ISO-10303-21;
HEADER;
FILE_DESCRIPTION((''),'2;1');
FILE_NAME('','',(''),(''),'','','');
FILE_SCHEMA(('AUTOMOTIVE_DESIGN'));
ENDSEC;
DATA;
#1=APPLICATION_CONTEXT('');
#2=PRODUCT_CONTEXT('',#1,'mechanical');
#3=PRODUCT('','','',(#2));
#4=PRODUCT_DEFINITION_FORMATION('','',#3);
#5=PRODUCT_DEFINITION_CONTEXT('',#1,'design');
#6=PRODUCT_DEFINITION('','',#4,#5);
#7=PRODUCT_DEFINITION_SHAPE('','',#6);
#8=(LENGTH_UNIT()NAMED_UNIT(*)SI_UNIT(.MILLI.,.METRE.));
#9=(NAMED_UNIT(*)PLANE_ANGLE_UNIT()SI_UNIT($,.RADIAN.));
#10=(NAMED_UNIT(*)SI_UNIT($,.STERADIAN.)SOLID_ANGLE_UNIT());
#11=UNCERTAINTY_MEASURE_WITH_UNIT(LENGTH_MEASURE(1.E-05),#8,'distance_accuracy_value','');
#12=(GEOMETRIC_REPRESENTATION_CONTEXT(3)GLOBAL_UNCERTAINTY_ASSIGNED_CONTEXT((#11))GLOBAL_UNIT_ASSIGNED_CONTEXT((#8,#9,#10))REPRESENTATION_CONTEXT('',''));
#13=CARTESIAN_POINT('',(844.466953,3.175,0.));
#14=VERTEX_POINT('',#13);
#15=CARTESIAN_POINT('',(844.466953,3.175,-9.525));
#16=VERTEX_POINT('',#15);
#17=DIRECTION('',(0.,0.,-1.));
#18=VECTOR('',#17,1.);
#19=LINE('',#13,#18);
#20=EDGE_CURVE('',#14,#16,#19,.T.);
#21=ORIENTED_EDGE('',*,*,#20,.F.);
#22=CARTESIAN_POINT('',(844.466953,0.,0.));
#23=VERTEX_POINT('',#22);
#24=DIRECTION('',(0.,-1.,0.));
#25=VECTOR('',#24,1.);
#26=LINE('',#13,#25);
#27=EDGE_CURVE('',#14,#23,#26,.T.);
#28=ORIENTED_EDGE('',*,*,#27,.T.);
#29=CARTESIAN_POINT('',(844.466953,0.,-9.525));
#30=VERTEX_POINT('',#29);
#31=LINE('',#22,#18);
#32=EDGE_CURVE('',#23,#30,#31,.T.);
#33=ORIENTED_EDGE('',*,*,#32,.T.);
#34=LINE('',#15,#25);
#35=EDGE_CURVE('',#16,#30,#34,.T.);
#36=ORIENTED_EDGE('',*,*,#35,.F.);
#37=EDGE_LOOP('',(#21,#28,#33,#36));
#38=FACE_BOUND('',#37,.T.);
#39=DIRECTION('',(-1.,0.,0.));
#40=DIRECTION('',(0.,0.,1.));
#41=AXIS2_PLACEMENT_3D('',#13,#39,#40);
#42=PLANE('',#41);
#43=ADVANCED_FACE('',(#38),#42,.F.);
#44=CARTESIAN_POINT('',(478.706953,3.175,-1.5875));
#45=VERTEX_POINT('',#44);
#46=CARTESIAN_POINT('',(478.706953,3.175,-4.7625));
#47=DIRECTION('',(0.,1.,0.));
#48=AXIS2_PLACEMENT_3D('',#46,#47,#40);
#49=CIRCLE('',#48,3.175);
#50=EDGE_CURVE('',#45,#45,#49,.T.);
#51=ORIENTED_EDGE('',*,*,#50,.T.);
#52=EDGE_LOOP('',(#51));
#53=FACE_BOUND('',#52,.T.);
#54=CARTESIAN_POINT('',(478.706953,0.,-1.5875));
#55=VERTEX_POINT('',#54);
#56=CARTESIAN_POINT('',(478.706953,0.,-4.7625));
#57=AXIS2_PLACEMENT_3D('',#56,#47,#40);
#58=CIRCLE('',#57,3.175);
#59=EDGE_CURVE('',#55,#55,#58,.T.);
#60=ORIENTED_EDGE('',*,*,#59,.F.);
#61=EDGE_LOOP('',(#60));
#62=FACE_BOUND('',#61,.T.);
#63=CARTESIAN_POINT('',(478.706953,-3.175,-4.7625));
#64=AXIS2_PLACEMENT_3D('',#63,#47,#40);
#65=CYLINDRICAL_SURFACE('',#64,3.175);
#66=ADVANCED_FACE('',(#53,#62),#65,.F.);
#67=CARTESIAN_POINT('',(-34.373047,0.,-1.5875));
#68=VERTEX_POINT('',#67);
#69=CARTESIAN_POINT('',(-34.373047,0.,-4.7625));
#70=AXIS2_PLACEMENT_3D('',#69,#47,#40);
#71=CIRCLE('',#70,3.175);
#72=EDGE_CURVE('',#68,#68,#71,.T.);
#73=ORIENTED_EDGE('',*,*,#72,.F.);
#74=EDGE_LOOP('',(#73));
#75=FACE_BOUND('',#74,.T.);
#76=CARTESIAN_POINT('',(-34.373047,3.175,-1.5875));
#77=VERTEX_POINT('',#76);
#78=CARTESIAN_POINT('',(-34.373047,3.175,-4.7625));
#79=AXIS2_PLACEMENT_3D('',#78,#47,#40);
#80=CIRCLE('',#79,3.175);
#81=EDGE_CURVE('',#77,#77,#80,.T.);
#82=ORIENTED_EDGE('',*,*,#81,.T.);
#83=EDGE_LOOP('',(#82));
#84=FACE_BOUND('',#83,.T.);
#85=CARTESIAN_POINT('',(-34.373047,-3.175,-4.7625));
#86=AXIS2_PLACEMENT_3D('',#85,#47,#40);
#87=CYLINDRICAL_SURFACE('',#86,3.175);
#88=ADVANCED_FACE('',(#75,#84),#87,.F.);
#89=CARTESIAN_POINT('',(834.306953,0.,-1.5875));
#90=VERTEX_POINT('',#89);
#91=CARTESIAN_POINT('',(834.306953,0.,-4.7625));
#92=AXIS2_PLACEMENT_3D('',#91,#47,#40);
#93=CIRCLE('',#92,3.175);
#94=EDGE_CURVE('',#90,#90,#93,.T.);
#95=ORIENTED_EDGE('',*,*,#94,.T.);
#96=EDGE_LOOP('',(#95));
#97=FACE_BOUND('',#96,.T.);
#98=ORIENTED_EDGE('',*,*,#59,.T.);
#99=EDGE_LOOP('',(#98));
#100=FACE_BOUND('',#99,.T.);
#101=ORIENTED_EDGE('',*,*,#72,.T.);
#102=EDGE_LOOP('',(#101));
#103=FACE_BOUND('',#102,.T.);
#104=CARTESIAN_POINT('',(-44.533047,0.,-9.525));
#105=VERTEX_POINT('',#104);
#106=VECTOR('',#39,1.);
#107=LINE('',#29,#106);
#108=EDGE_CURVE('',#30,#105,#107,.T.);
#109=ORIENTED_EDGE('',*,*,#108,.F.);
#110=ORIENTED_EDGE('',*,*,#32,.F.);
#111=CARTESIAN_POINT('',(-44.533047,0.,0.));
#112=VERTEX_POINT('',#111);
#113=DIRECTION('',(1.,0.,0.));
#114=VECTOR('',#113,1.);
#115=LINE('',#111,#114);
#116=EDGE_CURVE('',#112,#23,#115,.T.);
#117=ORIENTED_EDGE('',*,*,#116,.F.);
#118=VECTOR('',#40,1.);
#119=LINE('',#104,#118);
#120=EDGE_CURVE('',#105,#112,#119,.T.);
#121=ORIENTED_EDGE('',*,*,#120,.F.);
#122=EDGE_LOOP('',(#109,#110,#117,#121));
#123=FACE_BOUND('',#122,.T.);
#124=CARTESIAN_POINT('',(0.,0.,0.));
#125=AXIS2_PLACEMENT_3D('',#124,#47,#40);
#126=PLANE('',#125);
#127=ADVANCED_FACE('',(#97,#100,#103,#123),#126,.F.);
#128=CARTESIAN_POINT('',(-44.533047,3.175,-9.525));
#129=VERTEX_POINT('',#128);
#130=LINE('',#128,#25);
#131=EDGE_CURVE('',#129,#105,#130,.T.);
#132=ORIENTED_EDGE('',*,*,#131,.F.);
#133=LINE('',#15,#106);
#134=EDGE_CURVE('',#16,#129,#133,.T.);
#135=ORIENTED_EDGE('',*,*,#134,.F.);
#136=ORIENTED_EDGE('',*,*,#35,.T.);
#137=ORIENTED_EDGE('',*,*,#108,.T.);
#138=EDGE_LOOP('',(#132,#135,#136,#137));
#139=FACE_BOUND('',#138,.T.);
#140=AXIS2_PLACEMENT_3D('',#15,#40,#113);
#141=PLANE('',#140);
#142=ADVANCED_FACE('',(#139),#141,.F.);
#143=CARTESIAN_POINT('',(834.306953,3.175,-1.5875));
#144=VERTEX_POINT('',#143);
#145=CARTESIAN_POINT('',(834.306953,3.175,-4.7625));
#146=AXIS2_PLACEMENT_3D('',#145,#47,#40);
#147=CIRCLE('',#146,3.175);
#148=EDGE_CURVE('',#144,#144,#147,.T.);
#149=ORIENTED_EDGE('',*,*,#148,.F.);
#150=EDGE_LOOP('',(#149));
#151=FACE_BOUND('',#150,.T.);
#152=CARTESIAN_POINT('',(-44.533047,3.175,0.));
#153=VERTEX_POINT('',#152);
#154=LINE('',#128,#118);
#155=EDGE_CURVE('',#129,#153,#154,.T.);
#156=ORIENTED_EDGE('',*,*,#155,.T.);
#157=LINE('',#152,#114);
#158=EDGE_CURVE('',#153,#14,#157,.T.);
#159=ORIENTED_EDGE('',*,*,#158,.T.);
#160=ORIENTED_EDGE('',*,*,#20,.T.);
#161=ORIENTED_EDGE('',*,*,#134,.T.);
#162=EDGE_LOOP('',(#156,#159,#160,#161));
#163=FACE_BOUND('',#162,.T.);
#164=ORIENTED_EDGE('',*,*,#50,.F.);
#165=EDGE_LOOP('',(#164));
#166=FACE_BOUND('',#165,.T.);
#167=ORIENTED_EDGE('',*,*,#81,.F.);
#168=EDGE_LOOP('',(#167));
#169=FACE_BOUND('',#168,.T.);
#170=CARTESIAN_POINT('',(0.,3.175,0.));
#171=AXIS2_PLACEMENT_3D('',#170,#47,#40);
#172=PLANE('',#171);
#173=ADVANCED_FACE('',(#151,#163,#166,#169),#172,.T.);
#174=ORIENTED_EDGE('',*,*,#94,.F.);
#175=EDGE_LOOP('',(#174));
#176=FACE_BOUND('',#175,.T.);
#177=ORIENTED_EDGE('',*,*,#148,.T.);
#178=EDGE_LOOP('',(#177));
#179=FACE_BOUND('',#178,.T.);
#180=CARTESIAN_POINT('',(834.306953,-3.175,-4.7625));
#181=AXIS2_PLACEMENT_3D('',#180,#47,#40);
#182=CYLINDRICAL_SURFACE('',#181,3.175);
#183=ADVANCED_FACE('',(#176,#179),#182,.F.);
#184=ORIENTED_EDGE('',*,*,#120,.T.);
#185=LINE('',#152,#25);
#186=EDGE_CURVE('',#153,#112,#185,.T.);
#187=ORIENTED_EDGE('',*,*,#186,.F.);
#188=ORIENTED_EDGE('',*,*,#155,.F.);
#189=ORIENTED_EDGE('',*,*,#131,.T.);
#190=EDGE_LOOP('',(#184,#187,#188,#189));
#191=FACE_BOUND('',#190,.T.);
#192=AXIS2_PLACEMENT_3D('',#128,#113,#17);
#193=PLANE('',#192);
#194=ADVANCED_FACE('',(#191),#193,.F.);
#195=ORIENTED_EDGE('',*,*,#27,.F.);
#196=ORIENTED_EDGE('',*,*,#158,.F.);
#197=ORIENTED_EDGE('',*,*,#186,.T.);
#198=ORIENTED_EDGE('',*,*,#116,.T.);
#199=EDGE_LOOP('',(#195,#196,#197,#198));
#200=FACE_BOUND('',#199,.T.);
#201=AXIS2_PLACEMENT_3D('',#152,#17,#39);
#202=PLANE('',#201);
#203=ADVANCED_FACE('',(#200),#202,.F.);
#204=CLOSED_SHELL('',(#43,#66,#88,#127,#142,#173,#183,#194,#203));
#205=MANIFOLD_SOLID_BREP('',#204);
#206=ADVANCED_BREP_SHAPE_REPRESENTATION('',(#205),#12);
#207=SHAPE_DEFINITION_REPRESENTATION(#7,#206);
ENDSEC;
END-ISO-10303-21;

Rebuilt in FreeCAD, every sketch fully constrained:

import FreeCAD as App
import Part
import Sketcher
from FreeCAD import Vector
Q = App.Units.Quantity


def add_polygon(sketch, points):
    """Adds a closed chain of lines whose ends are joined by coincident constraints."""
    first, n = sketch.GeometryCount, len(points)
    for a, b in zip(points, points[1:] + points[:1]):
        sketch.addGeometry(Part.LineSegment(App.Vector(*a, 0), App.Vector(*b, 0)), False)
    for i in range(n):
        sketch.addConstraint(Sketcher.Constraint("Coincident", first + i, 2, first + (i + 1) % n, 1))

doc = App.newDocument("Part")
body = doc.addObject("PartDesign::Body", "Body")

# Sketch on XZ plane
sketch1 = doc.addObject("Sketcher::SketchObject", "Sketch")
body.addObject(sketch1)
sketch1.AttachmentSupport = (doc.XZ_Plane, [""])
sketch1.MapMode = "FlatFace"
add_polygon(sketch1, [(-44.533047, -9.525), (-44.533047, 0), (844.466953, 0), (844.466953, -9.525)])  # lines 0-3
sketch1.addConstraint([
    Sketcher.Constraint("Vertical", 0),
    Sketcher.Constraint("Horizontal", 1),
    Sketcher.Constraint("Vertical", 2),
    Sketcher.Constraint("Horizontal", 3),
    Sketcher.Constraint("PointOnObject", 0, 2, -1),
    Sketcher.Constraint("DistanceX", 1, 1, 1, 2, Q("35 in")),
    Sketcher.Constraint("DistanceY", 0, 1, 0, 2, Q("0.375 in")),
    Sketcher.Constraint("DistanceX", 0, 2, -1, 1, 44.533047),
])
pad1 = doc.addObject("PartDesign::Pad", "Pad")
body.addObject(pad1)
pad1.Profile = sketch1
pad1.Length = Q("0.125 in")
pad1.Reversed = True

# Sketch on XZ plane
sketch2 = doc.addObject("Sketcher::SketchObject", "Sketch001")
body.addObject(sketch2)
sketch2.AttachmentSupport = (doc.XZ_Plane, [""])
sketch2.MapMode = "FlatFace"
sketch2.AttachmentOffset = App.Placement(Vector(0, 0, -0.125 * 25.4), App.Rotation())
sketch2.addGeometry([
    Part.Circle(Vector(-34.373047, -4.7625, 0), Vector(0, 0, 1), 3.175),
    Part.Circle(Vector(834.306953, -4.7625, 0), Vector(0, 0, 1), 3.175),
    Part.Circle(Vector(478.706953, -4.7625, 0), Vector(0, 0, 1), 3.175),
], False)
sketch2.addConstraint([
    Sketcher.Constraint("Equal", 0, 1),
    Sketcher.Constraint("Equal", 1, 2),
    Sketcher.Constraint("Horizontal", 0, 3, 1, 3),
    Sketcher.Constraint("Horizontal", 1, 3, 2, 3),
    Sketcher.Constraint("Diameter", 0, Q("0.25 in")),
    Sketcher.Constraint("DistanceX", 2, 3, 1, 3, Q("14 in")),
    Sketcher.Constraint("DistanceX", 0, 3, 1, 3, Q("34.2 in")),
    Sketcher.Constraint("DistanceY", 0, 3, -1, 1, Q("0.1875 in")),
    Sketcher.Constraint("DistanceX", 0, 3, -1, 1, 34.373047),
])
pocket1 = doc.addObject("PartDesign::Pocket", "Pocket")
body.addObject(pocket1)
pocket1.Profile = sketch2
pocket1.Length = Q("0.25 in")
pocket1.Reversed = True

doc.recompute()
